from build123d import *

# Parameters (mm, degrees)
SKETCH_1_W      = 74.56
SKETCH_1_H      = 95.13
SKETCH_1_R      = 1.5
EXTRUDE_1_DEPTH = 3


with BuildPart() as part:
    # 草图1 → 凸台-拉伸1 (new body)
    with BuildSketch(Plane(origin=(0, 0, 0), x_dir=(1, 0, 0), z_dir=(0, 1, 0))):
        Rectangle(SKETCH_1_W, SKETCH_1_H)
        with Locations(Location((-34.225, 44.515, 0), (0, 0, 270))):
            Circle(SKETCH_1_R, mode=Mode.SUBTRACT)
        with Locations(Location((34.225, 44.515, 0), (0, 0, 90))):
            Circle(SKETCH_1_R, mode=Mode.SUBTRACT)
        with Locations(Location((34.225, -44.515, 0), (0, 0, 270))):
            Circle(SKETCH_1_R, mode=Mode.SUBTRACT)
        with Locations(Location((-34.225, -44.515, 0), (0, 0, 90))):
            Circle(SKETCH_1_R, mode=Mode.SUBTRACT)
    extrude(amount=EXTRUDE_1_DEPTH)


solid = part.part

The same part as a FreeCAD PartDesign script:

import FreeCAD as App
import Part
import Sketcher

V = App.Vector
Q = App.Units.Quantity


def add_polygon(sketch, points):
    """Adds a closed chain of lines whose ends are joined by coincident constraints."""
    first, n = sketch.GeometryCount, len(points)
    for a, b in zip(points, points[1:] + points[:1]):
        sketch.addGeometry(Part.LineSegment(App.Vector(*a, 0), App.Vector(*b, 0)), False)
    for i in range(n):
        sketch.addConstraint(Sketcher.Constraint("Coincident", first + i, 2, first + (i + 1) % n, 1))

doc = App.newDocument("Part")
params = doc.addObject("Spreadsheet::Sheet", "Params")
for row, (alias, value) in enumerate([
    ("sketch1_diameter", "3 mm"),
    ("sketch1_width", "74.56 mm"),
    ("sketch1_height", "95.13 mm"),
    ("pad1_length", "3 mm"),
], start=1):
    params.set(f"A{row}", alias)
    params.set(f"B{row}", "=" + value)
    params.setAlias(f"B{row}", alias)

body = doc.addObject("PartDesign::Body", "Body")

# Sketch on XZ plane
sketch1 = body.newObject("Sketcher::SketchObject", "Sketch")
sketch1.AttachmentSupport = (doc.getObject("XZ_Plane"), [""])
sketch1.MapMode = "FlatFace"
add_polygon(sketch1, [(-37.28, -47.565), (-37.28, 47.565), (37.28, 47.565), (37.28, -47.565)])  # lines 0-3
sketch1.addGeometry(Part.Circle(V(-34.225, 44.515, 0), V(0, 0, 1), 1.5), False)  # 4
sketch1.addGeometry(Part.Circle(V(34.225, 44.515, 0), V(0, 0, 1), 1.5), False)  # 5
sketch1.addGeometry(Part.Circle(V(-34.225, -44.515, 0), V(0, 0, 1), 1.5), False)  # 6
sketch1.addGeometry(Part.Circle(V(34.225, -44.515, 0), V(0, 0, 1), 1.5), False)  # 7
sketch1.addConstraint(Sketcher.Constraint("Vertical", 0))
sketch1.addConstraint(Sketcher.Constraint("Horizontal", 1))
sketch1.addConstraint(Sketcher.Constraint("Vertical", 2))
sketch1.addConstraint(Sketcher.Constraint("Horizontal", 3))
sketch1.addConstraint(Sketcher.Constraint("Equal", 4, 5))
sketch1.addConstraint(Sketcher.Constraint("Equal", 5, 6))
sketch1.addConstraint(Sketcher.Constraint("Equal", 6, 7))
sketch1.addConstraint(Sketcher.Constraint("Symmetric", 5, 3, 6, 3, -1, 1))
sketch1.addConstraint(Sketcher.Constraint("Symmetric", 4, 3, 7, 3, -1, 1))
sketch1.addConstraint(Sketcher.Constraint("Symmetric", 0, 2, 2, 2, -1, 1))
sketch1.addConstraint(Sketcher.Constraint("Symmetric", 4, 3, 5, 3, -2))
sketch1.addConstraint(Sketcher.Constraint("Diameter", 4, Q("3 mm")))
sketch1.addConstraint(Sketcher.Constraint("DistanceX", 1, 1, 1, 2, Q("74.56 mm")))
sketch1.addConstraint(Sketcher.Constraint("DistanceY", 0, 1, 0, 2, Q("95.13 mm")))
sketch1.addConstraint(Sketcher.Constraint("DistanceX", 4, 3, 5, 3, Q("68.45 mm")))
sketch1.addConstraint(Sketcher.Constraint("DistanceY", 6, 3, 4, 3, Q("89.03 mm")))
sketch1.setExpression("Constraints[15]", "Params.sketch1_diameter")
sketch1.setExpression("Constraints[16]", "Params.sketch1_width")
sketch1.setExpression("Constraints[17]", "Params.sketch1_height")
pad1 = body.newObject("PartDesign::Pad", "Pad")
pad1.Profile = sketch1
pad1.setExpression("Length", "Params.pad1_length")
pad1.Reversed = True

doc.recompute()
